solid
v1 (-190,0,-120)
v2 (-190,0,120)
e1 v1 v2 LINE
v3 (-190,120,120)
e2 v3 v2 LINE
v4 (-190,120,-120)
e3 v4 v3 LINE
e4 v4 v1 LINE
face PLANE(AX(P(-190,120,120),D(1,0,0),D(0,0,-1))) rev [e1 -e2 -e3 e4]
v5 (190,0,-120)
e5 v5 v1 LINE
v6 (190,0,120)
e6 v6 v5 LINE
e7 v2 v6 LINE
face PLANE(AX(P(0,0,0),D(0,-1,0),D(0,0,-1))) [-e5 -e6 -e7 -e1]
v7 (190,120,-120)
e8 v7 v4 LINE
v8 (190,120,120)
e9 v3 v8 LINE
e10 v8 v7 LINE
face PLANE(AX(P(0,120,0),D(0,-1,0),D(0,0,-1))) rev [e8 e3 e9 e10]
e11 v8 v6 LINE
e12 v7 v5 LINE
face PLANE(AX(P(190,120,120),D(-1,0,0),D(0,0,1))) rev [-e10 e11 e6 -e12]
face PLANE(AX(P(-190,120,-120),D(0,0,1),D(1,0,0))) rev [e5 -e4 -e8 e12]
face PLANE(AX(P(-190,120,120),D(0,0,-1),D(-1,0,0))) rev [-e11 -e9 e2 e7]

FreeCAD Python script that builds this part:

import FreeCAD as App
import Part
import Sketcher
Q = App.Units.Quantity


def add_polygon(sketch, points):
    """Adds a closed chain of lines whose ends are joined by coincident constraints."""
    first, n = sketch.GeometryCount, len(points)
    for a, b in zip(points, points[1:] + points[:1]):
        sketch.addGeometry(Part.LineSegment(App.Vector(*a, 0), App.Vector(*b, 0)), False)
    for i in range(n):
        sketch.addConstraint(Sketcher.Constraint("Coincident", first + i, 2, first + (i + 1) % n, 1))

doc = App.newDocument("Part")
params = doc.addObject("Spreadsheet::Sheet", "Params")
for row, (alias, value) in enumerate([
    ("sketch1_width", "380 mm"),
    ("sketch1_height", "240 mm"),
    ("pad1_length", "120 mm"),
], start=1):
    params.set(f"A{row}", alias)
    params.set(f"B{row}", "=" + value)
    params.setAlias(f"B{row}", alias)

body = doc.addObject("PartDesign::Body", "Body")

sketch1 = body.newObject("Sketcher::SketchObject", "Sketch")
sketch1.AttachmentSupport = (doc.getObject("XZ_Plane"), [""])
sketch1.MapMode = "FlatFace"
add_polygon(sketch1, [(-190, -120), (-190, 120), (190, 120), (190, -120)])
sketch1.addConstraint([
    Sketcher.Constraint("Vertical", 0),
    Sketcher.Constraint("Horizontal", 1),
    Sketcher.Constraint("Vertical", 2),
    Sketcher.Constraint("Horizontal", 3),
    Sketcher.Constraint("Symmetric", 0, 2, 2, 2, -1, 1),
    Sketcher.Constraint("DistanceX", 1, 1, 1, 2, Q("380 mm")),
    Sketcher.Constraint("DistanceY", 0, 1, 0, 2, Q("240 mm")),
])
sketch1.setExpression("Constraints[9]", "Params.sketch1_width")
sketch1.setExpression("Constraints[10]", "Params.sketch1_height")
pad1 = body.newObject("PartDesign::Pad", "Pad")
pad1.Profile = sketch1
pad1.setExpression("Length", "Params.pad1_length")
pad1.Reversed = True

doc.recompute()
